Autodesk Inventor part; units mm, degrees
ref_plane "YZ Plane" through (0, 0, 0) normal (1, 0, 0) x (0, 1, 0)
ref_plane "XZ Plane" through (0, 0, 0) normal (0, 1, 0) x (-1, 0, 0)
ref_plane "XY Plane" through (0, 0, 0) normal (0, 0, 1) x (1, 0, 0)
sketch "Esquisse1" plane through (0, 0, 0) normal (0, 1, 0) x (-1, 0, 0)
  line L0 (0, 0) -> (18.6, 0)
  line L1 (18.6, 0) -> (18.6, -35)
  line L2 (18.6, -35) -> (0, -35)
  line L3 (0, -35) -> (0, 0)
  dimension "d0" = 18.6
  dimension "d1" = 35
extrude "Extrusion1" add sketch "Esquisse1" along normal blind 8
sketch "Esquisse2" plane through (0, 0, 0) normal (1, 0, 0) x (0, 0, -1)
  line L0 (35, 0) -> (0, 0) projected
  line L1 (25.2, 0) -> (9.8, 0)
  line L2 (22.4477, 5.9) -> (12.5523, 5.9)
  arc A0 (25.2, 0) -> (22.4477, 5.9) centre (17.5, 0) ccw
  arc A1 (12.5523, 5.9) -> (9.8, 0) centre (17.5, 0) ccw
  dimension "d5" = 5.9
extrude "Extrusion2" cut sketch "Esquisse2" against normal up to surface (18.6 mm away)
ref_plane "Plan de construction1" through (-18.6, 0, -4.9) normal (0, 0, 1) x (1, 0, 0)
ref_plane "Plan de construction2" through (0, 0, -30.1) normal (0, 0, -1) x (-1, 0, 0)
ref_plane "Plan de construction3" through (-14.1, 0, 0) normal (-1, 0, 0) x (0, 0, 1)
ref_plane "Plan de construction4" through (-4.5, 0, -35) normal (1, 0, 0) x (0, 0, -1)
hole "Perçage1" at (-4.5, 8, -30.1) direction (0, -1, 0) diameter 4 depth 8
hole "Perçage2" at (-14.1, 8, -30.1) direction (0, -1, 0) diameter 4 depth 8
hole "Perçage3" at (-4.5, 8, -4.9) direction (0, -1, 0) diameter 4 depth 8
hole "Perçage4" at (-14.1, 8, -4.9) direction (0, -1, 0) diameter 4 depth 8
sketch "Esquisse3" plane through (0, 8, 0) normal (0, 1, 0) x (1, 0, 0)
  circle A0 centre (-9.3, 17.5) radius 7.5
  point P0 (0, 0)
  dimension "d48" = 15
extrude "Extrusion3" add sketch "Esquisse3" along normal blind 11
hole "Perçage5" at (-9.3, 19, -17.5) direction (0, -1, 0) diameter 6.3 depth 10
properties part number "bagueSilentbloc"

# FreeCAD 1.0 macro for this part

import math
import FreeCAD as App
import Part
import Sketcher
from FreeCAD import Vector

doc = App.newDocument("Part")
body = doc.addObject("PartDesign::Body", "Body")

# Sketch on XZ plane
sketch1 = body.newObject("Sketcher::SketchObject", "Sketch")
sketch1.AttachmentSupport = (doc.getObject("XZ_Plane"), [""])
sketch1.MapMode = "FlatFace"
sketch1.addGeometry([
    Part.LineSegment(Vector(-19, 0, 0), Vector(0, 0, 0)),
    Part.LineSegment(Vector(0, 0, 0), Vector(0, -35, 0)),
    Part.LineSegment(Vector(0, -35, 0), Vector(-19, -35, 0)),
    Part.LineSegment(Vector(-19, -35, 0), Vector(-19, 0, 0)),
], False)
sketch1.addConstraint([
    Sketcher.Constraint("Coincident", 0, 2, 1, 1),
    Sketcher.Constraint("Coincident", 1, 2, 2, 1),
    Sketcher.Constraint("Coincident", 2, 2, 3, 1),
    Sketcher.Constraint("Coincident", 3, 2, 0, 1),
    Sketcher.Constraint("Horizontal", 0),
    Sketcher.Constraint("Vertical", 1),
    Sketcher.Constraint("Horizontal", 2),
    Sketcher.Constraint("Vertical", 3),
    Sketcher.Constraint("Coincident", 0, 2, -1, 1),
    Sketcher.Constraint("DistanceY", 1, 2, 1, 1, 35.0),
    Sketcher.Constraint("DistanceX", 0, 1, 0, 2, 18.6),
])
pad1 = body.newObject("PartDesign::Pad", "Pad")
pad1.Profile = sketch1
pad1.Length = 8
pad1.Reversed = True

# Sketch on YZ plane
sketch2 = body.newObject("Sketcher::SketchObject", "Sketch001")
sketch2.AttachmentSupport = (doc.getObject("YZ_Plane"), [""])
sketch2.MapMode = "FlatFace"
sketch2.addGeometry([
    Part.LineSegment(Vector(0, -10, 0), Vector(0, -25, 0)),
    Part.ArcOfCircle(Part.Circle(Vector(0, -18, 0), Vector(0, 0, 1), 8), math.radians(-90), math.radians(-40)),
    Part.LineSegment(Vector(6, -22, 0), Vector(6, -13, 0)),
    Part.ArcOfCircle(Part.Circle(Vector(0, -18, 0), Vector(0, 0, 1), 8), math.radians(40), math.radians(90)),
], False)
sketch2.addConstraint([
    Sketcher.Constraint("Coincident", 0, 2, 1, 1),
    Sketcher.Constraint("Coincident", 1, 2, 2, 1),
    Sketcher.Constraint("Coincident", 2, 2, 3, 1),
    Sketcher.Constraint("Coincident", 3, 2, 0, 1),
    Sketcher.Constraint("Vertical", 0),
    Sketcher.Constraint("Vertical", 2),
    Sketcher.Constraint("Coincident", 3, 3, 1, 3),
    Sketcher.Constraint("Equal", 1, 3),
    Sketcher.Constraint("PointOnObject", 1, 3, -2),
    Sketcher.Constraint("PointOnObject", 0, 2, -2),
    Sketcher.Constraint("DistanceX", -1, 1, 1, 2, 5.9),
    Sketcher.Constraint("Radius", 1, 7.7),
    Sketcher.Constraint("DistanceY", 1, 3, -1, 1, 17.5),
])
pocket1 = body.newObject("PartDesign::Pocket", "Pocket")
pocket1.Profile = sketch2
pocket1.Length = 18.6

# Sketch on XZ plane
sketch3 = body.newObject("Sketcher::SketchObject", "Sketch002")
sketch3.AttachmentSupport = (doc.getObject("XZ_Plane"), [""])
sketch3.MapMode = "FlatFace"
sketch3.AttachmentOffset = App.Placement(Vector(0, 0, -8), App.Rotation())
sketch3.addGeometry(Part.Circle(Vector(-4.5, -30.1, 0), Vector(0, 0, 1), 2), False)
sketch3.addConstraint([
    Sketcher.Constraint("Diameter", 0, 4.0),
    Sketcher.Constraint("DistanceX", 0, 3, -1, 1, 4.5),
    Sketcher.Constraint("DistanceY", 0, 3, -1, 1, 30.1),
])
doc.recompute()
hole = body.newObject("PartDesign::Hole", "Hole")
hole.Profile = sketch3
hole.ThreadType = "None"
hole.Diameter = 4
hole.DepthType = "Dimension"
hole.Depth = 8
hole.DrillPoint = "Flat"
hole.Reversed = True

# Sketch on XZ plane
sketch4 = body.newObject("Sketcher::SketchObject", "Sketch003")
sketch4.AttachmentSupport = (doc.getObject("XZ_Plane"), [""])
sketch4.MapMode = "FlatFace"
sketch4.AttachmentOffset = App.Placement(Vector(0, 0, -8), App.Rotation())
sketch4.addGeometry(Part.Circle(Vector(-14.1, -30.1, 0), Vector(0, 0, 1), 2), False)
sketch4.addConstraint([
    Sketcher.Constraint("Diameter", 0, 4.0),
    Sketcher.Constraint("DistanceX", 0, 3, -1, 1, 14.1),
    Sketcher.Constraint("DistanceY", 0, 3, -1, 1, 30.1),
])
doc.recompute()
hole2 = body.newObject("PartDesign::Hole", "Hole001")
hole2.Profile = sketch4
hole2.ThreadType = "None"
hole2.Diameter = 4
hole2.DepthType = "Dimension"
hole2.Depth = 8
hole2.DrillPoint = "Flat"
hole2.Reversed = True

# Sketch on XZ plane
sketch5 = body.newObject("Sketcher::SketchObject", "Sketch004")
sketch5.AttachmentSupport = (doc.getObject("XZ_Plane"), [""])
sketch5.MapMode = "FlatFace"
sketch5.AttachmentOffset = App.Placement(Vector(0, 0, -8), App.Rotation())
sketch5.addGeometry(Part.Circle(Vector(-4.5, -4.9, 0), Vector(0, 0, 1), 2), False)
sketch5.addConstraint([
    Sketcher.Constraint("Diameter", 0, 4.0),
    Sketcher.Constraint("DistanceX", 0, 3, -1, 1, 4.5),
    Sketcher.Constraint("DistanceY", 0, 3, -1, 1, 4.9),
])
doc.recompute()
hole3 = body.newObject("PartDesign::Hole", "Hole002")
hole3.Profile = sketch5
hole3.ThreadType = "None"
hole3.Diameter = 4
hole3.DepthType = "Dimension"
hole3.Depth = 8
hole3.DrillPoint = "Flat"
hole3.Reversed = True

# Sketch on XZ plane
sketch6 = body.newObject("Sketcher::SketchObject", "Sketch005")
sketch6.AttachmentSupport = (doc.getObject("XZ_Plane"), [""])
sketch6.MapMode = "FlatFace"
sketch6.AttachmentOffset = App.Placement(Vector(0, 0, -8), App.Rotation())
sketch6.addGeometry(Part.Circle(Vector(-14.1, -4.9, 0), Vector(0, 0, 1), 2), False)
sketch6.addConstraint([
    Sketcher.Constraint("Diameter", 0, 4.0),
    Sketcher.Constraint("DistanceX", 0, 3, -1, 1, 14.1),
    Sketcher.Constraint("DistanceY", 0, 3, -1, 1, 4.9),
])
doc.recompute()
hole4 = body.newObject("PartDesign::Hole", "Hole003")
hole4.Profile = sketch6
hole4.ThreadType = "None"
hole4.Diameter = 4
hole4.DepthType = "Dimension"
hole4.Depth = 8
hole4.DrillPoint = "Flat"
hole4.Reversed = True

# Sketch on XZ plane
sketch7 = body.newObject("Sketcher::SketchObject", "Sketch006")
sketch7.AttachmentSupport = (doc.getObject("XZ_Plane"), [""])
sketch7.MapMode = "FlatFace"
sketch7.AttachmentOffset = App.Placement(Vector(0, 0, -8), App.Rotation())
sketch7.addGeometry(Part.Circle(Vector(-9, -18, 0), Vector(0, 0, 1), 8), False)
sketch7.addConstraint([
    Sketcher.Constraint("Diameter", 0, 15.0),
    Sketcher.Constraint("DistanceX", 0, 3, -1, 1, 9.3),
    Sketcher.Constraint("DistanceY", 0, 3, -1, 1, 17.5),
])
pad2 = body.newObject("PartDesign::Pad", "Pad001")
pad2.Profile = sketch7
pad2.Length = 11
pad2.Reversed = True

# Sketch on XZ plane
sketch8 = body.newObject("Sketcher::SketchObject", "Sketch007")
sketch8.AttachmentSupport = (doc.getObject("XZ_Plane"), [""])
sketch8.MapMode = "FlatFace"
sketch8.AttachmentOffset = App.Placement(Vector(0, 0, -19), App.Rotation())
sketch8.addGeometry(Part.Circle(Vector(-9.3, -17.5, 0), Vector(0, 0, 1), 3.1), False)
sketch8.addConstraint([
    Sketcher.Constraint("Diameter", 0, 6.3),
    Sketcher.Constraint("DistanceX", 0, 3, -1, 1, 9.3),
    Sketcher.Constraint("DistanceY", 0, 3, -1, 1, 17.5),
])
doc.recompute()
hole5 = body.newObject("PartDesign::Hole", "Hole004")
hole5.Profile = sketch8
hole5.ThreadType = "None"
hole5.Diameter = 6.3
hole5.DepthType = "Dimension"
hole5.Depth = 10
hole5.DrillPoint = "Flat"
hole5.Reversed = True

doc.recompute()
